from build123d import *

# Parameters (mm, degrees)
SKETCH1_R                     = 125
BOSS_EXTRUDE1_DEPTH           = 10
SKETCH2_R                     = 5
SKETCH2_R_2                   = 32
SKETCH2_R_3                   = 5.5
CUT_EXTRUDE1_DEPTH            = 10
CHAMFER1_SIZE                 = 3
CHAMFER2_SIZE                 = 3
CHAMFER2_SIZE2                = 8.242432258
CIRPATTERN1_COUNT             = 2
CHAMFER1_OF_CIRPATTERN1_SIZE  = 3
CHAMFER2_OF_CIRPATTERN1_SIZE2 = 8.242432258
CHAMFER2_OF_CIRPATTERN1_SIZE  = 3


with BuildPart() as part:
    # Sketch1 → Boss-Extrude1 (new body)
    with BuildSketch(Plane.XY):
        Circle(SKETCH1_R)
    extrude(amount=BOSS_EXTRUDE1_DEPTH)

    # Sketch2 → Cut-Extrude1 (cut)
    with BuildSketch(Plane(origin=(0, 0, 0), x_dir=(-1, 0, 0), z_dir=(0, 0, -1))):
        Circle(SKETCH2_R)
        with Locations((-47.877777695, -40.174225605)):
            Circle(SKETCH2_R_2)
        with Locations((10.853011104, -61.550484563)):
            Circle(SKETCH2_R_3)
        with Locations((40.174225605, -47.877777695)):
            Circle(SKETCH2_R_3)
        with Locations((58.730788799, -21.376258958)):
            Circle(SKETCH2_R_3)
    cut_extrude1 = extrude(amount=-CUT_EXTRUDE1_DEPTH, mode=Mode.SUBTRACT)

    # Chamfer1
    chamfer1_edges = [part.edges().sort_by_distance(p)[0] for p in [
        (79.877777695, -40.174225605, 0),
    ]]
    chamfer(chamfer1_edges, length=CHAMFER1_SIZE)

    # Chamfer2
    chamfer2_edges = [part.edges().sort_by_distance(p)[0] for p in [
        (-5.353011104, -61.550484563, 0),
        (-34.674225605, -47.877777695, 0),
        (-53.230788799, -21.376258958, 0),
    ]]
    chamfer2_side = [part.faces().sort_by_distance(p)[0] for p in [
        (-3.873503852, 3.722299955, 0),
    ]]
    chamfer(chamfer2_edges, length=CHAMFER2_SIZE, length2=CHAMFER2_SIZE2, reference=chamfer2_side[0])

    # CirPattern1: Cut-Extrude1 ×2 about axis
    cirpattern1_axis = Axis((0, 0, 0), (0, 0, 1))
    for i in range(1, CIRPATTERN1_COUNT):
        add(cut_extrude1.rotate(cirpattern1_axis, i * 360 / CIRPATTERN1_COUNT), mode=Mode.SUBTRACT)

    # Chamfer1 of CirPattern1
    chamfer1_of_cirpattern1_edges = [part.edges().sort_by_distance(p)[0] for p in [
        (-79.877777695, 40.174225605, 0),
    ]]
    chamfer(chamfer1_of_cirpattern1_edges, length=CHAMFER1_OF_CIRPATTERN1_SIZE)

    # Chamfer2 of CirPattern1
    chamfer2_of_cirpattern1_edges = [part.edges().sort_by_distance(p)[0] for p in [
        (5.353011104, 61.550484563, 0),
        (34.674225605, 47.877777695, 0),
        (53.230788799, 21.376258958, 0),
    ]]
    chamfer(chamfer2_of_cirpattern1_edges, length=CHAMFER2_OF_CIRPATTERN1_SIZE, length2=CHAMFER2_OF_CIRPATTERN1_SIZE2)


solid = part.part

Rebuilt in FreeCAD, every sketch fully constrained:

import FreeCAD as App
import Part
import Sketcher

V = App.Vector


def edges_at(feature, points):
    """Names of the edges that pass closest to the given points."""
    edges = feature.Shape.Edges
    near = lambda p: min(range(len(edges)), key=lambda i: edges[i].distToShape(Part.Vertex(*p))[0])
    return sorted({f"Edge{near(p) + 1}" for p in points})

doc = App.newDocument("Part")
params = doc.addObject("Spreadsheet::Sheet", "Params")
for row, (alias, value) in enumerate([
    ("sketch1_diameter", "250 mm"),
    ("pad1_length", "10 mm"),
    ("sketch2_diameter", "10 mm"),
    ("sketch2_diameter2", "64 mm"),
    ("sketch2_diameter3", "11 mm"),
    ("pocket1_length", "10 mm"),
    ("chamfer_size", "3 mm"),
    ("chamfer2_size", "3 mm"),
    ("chamfer2_size2", "8.242432 mm"),
    ("chamfer3_size", "3 mm"),
    ("chamfer4_size", "3 mm"),
    ("chamfer4_size2", "8.242432 mm"),
], start=1):
    params.set(f"A{row}", alias)
    params.set(f"B{row}", "=" + value)
    params.setAlias(f"B{row}", alias)

body = doc.addObject("PartDesign::Body", "Body")

# Sketch on XY plane
sketch1 = body.newObject("Sketcher::SketchObject", "Sketch")
sketch1.AttachmentSupport = (doc.getObject("XY_Plane"), [""])
sketch1.MapMode = "FlatFace"
sketch1.addGeometry(Part.Circle(V(0, 0, 0), V(0, 0, 1), 125), False)
sketch1.addConstraint([
    Sketcher.Constraint("Coincident", 0, 3, -1, 1),
    Sketcher.Constraint("Diameter", 0, 250.0),
])
sketch1.setExpression("Constraints[1]", "Params.sketch1_diameter")
pad1 = body.newObject("PartDesign::Pad", "Pad")
pad1.Profile = sketch1
pad1.setExpression("Length", "Params.pad1_length")

# Sketch on XY plane
sketch2 = body.newObject("Sketcher::SketchObject", "Sketch001")
sketch2.AttachmentSupport = (doc.getObject("XY_Plane"), [""])
sketch2.MapMode = "FlatFace"
sketch2.addGeometry([
    Part.Circle(V(0, 0, 0), V(0, 0, 1), 5),  # 0
    Part.Circle(V(48, -40, 0), V(0, 0, 1), 32),  # 1
    Part.Circle(V(-11, -62, 0), V(0, 0, 1), 6),  # 2
    Part.Circle(V(-40, -48, 0), V(0, 0, 1), 6),  # 3
    Part.Circle(V(-59, -21, 0), V(0, 0, 1), 6),  # 4
], False)
sketch2.addConstraint([
    Sketcher.Constraint("Coincident", 0, 3, -1, 1),
    Sketcher.Constraint("Equal", 2, 3),
    Sketcher.Constraint("Equal", 3, 4),
    Sketcher.Constraint("Diameter", 0, 10.0),
    Sketcher.Constraint("Diameter", 1, 64.0),
    Sketcher.Constraint("Diameter", 2, 11.0),
    Sketcher.Constraint("DistanceX", 2, 3, -1, 1, 10.853011),
    Sketcher.Constraint("DistanceX", 4, 3, -1, 1, 58.730789),
    Sketcher.Constraint("DistanceY", 4, 3, -1, 1, 21.376259),
    Sketcher.Constraint("DistanceX", 2, 3, 1, 3, 58.730789),
    Sketcher.Constraint("DistanceY", 2, 3, 1, 3, 21.376259),
    Sketcher.Constraint("DistanceY", 3, 3, 4, 3, 26.501519),
    Sketcher.Constraint("DistanceY", 1, 3, -1, 1, 40.174226),
    Sketcher.Constraint("DistanceX", 3, 3, -1, 1, 40.174226),
])
sketch2.setExpression("Constraints[3]", "Params.sketch2_diameter")
sketch2.setExpression("Constraints[4]", "Params.sketch2_diameter2")
sketch2.setExpression("Constraints[5]", "Params.sketch2_diameter3")
pocket1 = body.newObject("PartDesign::Pocket", "Pocket")
pocket1.Profile = sketch2
pocket1.setExpression("Length", "Params.pocket1_length")
pocket1.Reversed = True
doc.recompute()

chamfer = body.newObject("PartDesign::Chamfer", "Chamfer")
chamfer.Base = (pocket1, edges_at(pocket1, [(79.878, -40.174, 0)]))
chamfer.setExpression("Size", "Params.chamfer_size")
doc.recompute()

chamfer2 = body.newObject("PartDesign::Chamfer", "Chamfer001")
chamfer2.Base = (chamfer, edges_at(chamfer, [(-5.353, -61.55, 0), (-34.674, -47.878, 0), (-53.231, -21.376, 0)]))
chamfer2.ChamferType = "Two distances"
chamfer2.setExpression("Size", "Params.chamfer2_size")
chamfer2.setExpression("Size2", "Params.chamfer2_size2")
doc.recompute()

polarpattern = body.newObject("PartDesign::PolarPattern", "PolarPattern")
polarpattern.Originals = [pocket1]
polarpattern.Axis = (doc.getObject("Z_Axis"), [""])
polarpattern.Angle = 360
polarpattern.Occurrences = 2
body.Tip = polarpattern
doc.recompute()

chamfer3 = body.newObject("PartDesign::Chamfer", "Chamfer002")
chamfer3.Base = (polarpattern, edges_at(polarpattern, [(-79.878, 40.174, 0)]))
chamfer3.setExpression("Size", "Params.chamfer3_size")
doc.recompute()

chamfer4 = body.newObject("PartDesign::Chamfer", "Chamfer003")
chamfer4.Base = (chamfer3, edges_at(chamfer3, [(5.353, 61.55, 0), (34.674, 47.878, 0), (53.231, 21.376, 0)]))
chamfer4.ChamferType = "Two distances"
chamfer4.setExpression("Size", "Params.chamfer4_size")
chamfer4.setExpression("Size2", "Params.chamfer4_size2")

doc.recompute()
